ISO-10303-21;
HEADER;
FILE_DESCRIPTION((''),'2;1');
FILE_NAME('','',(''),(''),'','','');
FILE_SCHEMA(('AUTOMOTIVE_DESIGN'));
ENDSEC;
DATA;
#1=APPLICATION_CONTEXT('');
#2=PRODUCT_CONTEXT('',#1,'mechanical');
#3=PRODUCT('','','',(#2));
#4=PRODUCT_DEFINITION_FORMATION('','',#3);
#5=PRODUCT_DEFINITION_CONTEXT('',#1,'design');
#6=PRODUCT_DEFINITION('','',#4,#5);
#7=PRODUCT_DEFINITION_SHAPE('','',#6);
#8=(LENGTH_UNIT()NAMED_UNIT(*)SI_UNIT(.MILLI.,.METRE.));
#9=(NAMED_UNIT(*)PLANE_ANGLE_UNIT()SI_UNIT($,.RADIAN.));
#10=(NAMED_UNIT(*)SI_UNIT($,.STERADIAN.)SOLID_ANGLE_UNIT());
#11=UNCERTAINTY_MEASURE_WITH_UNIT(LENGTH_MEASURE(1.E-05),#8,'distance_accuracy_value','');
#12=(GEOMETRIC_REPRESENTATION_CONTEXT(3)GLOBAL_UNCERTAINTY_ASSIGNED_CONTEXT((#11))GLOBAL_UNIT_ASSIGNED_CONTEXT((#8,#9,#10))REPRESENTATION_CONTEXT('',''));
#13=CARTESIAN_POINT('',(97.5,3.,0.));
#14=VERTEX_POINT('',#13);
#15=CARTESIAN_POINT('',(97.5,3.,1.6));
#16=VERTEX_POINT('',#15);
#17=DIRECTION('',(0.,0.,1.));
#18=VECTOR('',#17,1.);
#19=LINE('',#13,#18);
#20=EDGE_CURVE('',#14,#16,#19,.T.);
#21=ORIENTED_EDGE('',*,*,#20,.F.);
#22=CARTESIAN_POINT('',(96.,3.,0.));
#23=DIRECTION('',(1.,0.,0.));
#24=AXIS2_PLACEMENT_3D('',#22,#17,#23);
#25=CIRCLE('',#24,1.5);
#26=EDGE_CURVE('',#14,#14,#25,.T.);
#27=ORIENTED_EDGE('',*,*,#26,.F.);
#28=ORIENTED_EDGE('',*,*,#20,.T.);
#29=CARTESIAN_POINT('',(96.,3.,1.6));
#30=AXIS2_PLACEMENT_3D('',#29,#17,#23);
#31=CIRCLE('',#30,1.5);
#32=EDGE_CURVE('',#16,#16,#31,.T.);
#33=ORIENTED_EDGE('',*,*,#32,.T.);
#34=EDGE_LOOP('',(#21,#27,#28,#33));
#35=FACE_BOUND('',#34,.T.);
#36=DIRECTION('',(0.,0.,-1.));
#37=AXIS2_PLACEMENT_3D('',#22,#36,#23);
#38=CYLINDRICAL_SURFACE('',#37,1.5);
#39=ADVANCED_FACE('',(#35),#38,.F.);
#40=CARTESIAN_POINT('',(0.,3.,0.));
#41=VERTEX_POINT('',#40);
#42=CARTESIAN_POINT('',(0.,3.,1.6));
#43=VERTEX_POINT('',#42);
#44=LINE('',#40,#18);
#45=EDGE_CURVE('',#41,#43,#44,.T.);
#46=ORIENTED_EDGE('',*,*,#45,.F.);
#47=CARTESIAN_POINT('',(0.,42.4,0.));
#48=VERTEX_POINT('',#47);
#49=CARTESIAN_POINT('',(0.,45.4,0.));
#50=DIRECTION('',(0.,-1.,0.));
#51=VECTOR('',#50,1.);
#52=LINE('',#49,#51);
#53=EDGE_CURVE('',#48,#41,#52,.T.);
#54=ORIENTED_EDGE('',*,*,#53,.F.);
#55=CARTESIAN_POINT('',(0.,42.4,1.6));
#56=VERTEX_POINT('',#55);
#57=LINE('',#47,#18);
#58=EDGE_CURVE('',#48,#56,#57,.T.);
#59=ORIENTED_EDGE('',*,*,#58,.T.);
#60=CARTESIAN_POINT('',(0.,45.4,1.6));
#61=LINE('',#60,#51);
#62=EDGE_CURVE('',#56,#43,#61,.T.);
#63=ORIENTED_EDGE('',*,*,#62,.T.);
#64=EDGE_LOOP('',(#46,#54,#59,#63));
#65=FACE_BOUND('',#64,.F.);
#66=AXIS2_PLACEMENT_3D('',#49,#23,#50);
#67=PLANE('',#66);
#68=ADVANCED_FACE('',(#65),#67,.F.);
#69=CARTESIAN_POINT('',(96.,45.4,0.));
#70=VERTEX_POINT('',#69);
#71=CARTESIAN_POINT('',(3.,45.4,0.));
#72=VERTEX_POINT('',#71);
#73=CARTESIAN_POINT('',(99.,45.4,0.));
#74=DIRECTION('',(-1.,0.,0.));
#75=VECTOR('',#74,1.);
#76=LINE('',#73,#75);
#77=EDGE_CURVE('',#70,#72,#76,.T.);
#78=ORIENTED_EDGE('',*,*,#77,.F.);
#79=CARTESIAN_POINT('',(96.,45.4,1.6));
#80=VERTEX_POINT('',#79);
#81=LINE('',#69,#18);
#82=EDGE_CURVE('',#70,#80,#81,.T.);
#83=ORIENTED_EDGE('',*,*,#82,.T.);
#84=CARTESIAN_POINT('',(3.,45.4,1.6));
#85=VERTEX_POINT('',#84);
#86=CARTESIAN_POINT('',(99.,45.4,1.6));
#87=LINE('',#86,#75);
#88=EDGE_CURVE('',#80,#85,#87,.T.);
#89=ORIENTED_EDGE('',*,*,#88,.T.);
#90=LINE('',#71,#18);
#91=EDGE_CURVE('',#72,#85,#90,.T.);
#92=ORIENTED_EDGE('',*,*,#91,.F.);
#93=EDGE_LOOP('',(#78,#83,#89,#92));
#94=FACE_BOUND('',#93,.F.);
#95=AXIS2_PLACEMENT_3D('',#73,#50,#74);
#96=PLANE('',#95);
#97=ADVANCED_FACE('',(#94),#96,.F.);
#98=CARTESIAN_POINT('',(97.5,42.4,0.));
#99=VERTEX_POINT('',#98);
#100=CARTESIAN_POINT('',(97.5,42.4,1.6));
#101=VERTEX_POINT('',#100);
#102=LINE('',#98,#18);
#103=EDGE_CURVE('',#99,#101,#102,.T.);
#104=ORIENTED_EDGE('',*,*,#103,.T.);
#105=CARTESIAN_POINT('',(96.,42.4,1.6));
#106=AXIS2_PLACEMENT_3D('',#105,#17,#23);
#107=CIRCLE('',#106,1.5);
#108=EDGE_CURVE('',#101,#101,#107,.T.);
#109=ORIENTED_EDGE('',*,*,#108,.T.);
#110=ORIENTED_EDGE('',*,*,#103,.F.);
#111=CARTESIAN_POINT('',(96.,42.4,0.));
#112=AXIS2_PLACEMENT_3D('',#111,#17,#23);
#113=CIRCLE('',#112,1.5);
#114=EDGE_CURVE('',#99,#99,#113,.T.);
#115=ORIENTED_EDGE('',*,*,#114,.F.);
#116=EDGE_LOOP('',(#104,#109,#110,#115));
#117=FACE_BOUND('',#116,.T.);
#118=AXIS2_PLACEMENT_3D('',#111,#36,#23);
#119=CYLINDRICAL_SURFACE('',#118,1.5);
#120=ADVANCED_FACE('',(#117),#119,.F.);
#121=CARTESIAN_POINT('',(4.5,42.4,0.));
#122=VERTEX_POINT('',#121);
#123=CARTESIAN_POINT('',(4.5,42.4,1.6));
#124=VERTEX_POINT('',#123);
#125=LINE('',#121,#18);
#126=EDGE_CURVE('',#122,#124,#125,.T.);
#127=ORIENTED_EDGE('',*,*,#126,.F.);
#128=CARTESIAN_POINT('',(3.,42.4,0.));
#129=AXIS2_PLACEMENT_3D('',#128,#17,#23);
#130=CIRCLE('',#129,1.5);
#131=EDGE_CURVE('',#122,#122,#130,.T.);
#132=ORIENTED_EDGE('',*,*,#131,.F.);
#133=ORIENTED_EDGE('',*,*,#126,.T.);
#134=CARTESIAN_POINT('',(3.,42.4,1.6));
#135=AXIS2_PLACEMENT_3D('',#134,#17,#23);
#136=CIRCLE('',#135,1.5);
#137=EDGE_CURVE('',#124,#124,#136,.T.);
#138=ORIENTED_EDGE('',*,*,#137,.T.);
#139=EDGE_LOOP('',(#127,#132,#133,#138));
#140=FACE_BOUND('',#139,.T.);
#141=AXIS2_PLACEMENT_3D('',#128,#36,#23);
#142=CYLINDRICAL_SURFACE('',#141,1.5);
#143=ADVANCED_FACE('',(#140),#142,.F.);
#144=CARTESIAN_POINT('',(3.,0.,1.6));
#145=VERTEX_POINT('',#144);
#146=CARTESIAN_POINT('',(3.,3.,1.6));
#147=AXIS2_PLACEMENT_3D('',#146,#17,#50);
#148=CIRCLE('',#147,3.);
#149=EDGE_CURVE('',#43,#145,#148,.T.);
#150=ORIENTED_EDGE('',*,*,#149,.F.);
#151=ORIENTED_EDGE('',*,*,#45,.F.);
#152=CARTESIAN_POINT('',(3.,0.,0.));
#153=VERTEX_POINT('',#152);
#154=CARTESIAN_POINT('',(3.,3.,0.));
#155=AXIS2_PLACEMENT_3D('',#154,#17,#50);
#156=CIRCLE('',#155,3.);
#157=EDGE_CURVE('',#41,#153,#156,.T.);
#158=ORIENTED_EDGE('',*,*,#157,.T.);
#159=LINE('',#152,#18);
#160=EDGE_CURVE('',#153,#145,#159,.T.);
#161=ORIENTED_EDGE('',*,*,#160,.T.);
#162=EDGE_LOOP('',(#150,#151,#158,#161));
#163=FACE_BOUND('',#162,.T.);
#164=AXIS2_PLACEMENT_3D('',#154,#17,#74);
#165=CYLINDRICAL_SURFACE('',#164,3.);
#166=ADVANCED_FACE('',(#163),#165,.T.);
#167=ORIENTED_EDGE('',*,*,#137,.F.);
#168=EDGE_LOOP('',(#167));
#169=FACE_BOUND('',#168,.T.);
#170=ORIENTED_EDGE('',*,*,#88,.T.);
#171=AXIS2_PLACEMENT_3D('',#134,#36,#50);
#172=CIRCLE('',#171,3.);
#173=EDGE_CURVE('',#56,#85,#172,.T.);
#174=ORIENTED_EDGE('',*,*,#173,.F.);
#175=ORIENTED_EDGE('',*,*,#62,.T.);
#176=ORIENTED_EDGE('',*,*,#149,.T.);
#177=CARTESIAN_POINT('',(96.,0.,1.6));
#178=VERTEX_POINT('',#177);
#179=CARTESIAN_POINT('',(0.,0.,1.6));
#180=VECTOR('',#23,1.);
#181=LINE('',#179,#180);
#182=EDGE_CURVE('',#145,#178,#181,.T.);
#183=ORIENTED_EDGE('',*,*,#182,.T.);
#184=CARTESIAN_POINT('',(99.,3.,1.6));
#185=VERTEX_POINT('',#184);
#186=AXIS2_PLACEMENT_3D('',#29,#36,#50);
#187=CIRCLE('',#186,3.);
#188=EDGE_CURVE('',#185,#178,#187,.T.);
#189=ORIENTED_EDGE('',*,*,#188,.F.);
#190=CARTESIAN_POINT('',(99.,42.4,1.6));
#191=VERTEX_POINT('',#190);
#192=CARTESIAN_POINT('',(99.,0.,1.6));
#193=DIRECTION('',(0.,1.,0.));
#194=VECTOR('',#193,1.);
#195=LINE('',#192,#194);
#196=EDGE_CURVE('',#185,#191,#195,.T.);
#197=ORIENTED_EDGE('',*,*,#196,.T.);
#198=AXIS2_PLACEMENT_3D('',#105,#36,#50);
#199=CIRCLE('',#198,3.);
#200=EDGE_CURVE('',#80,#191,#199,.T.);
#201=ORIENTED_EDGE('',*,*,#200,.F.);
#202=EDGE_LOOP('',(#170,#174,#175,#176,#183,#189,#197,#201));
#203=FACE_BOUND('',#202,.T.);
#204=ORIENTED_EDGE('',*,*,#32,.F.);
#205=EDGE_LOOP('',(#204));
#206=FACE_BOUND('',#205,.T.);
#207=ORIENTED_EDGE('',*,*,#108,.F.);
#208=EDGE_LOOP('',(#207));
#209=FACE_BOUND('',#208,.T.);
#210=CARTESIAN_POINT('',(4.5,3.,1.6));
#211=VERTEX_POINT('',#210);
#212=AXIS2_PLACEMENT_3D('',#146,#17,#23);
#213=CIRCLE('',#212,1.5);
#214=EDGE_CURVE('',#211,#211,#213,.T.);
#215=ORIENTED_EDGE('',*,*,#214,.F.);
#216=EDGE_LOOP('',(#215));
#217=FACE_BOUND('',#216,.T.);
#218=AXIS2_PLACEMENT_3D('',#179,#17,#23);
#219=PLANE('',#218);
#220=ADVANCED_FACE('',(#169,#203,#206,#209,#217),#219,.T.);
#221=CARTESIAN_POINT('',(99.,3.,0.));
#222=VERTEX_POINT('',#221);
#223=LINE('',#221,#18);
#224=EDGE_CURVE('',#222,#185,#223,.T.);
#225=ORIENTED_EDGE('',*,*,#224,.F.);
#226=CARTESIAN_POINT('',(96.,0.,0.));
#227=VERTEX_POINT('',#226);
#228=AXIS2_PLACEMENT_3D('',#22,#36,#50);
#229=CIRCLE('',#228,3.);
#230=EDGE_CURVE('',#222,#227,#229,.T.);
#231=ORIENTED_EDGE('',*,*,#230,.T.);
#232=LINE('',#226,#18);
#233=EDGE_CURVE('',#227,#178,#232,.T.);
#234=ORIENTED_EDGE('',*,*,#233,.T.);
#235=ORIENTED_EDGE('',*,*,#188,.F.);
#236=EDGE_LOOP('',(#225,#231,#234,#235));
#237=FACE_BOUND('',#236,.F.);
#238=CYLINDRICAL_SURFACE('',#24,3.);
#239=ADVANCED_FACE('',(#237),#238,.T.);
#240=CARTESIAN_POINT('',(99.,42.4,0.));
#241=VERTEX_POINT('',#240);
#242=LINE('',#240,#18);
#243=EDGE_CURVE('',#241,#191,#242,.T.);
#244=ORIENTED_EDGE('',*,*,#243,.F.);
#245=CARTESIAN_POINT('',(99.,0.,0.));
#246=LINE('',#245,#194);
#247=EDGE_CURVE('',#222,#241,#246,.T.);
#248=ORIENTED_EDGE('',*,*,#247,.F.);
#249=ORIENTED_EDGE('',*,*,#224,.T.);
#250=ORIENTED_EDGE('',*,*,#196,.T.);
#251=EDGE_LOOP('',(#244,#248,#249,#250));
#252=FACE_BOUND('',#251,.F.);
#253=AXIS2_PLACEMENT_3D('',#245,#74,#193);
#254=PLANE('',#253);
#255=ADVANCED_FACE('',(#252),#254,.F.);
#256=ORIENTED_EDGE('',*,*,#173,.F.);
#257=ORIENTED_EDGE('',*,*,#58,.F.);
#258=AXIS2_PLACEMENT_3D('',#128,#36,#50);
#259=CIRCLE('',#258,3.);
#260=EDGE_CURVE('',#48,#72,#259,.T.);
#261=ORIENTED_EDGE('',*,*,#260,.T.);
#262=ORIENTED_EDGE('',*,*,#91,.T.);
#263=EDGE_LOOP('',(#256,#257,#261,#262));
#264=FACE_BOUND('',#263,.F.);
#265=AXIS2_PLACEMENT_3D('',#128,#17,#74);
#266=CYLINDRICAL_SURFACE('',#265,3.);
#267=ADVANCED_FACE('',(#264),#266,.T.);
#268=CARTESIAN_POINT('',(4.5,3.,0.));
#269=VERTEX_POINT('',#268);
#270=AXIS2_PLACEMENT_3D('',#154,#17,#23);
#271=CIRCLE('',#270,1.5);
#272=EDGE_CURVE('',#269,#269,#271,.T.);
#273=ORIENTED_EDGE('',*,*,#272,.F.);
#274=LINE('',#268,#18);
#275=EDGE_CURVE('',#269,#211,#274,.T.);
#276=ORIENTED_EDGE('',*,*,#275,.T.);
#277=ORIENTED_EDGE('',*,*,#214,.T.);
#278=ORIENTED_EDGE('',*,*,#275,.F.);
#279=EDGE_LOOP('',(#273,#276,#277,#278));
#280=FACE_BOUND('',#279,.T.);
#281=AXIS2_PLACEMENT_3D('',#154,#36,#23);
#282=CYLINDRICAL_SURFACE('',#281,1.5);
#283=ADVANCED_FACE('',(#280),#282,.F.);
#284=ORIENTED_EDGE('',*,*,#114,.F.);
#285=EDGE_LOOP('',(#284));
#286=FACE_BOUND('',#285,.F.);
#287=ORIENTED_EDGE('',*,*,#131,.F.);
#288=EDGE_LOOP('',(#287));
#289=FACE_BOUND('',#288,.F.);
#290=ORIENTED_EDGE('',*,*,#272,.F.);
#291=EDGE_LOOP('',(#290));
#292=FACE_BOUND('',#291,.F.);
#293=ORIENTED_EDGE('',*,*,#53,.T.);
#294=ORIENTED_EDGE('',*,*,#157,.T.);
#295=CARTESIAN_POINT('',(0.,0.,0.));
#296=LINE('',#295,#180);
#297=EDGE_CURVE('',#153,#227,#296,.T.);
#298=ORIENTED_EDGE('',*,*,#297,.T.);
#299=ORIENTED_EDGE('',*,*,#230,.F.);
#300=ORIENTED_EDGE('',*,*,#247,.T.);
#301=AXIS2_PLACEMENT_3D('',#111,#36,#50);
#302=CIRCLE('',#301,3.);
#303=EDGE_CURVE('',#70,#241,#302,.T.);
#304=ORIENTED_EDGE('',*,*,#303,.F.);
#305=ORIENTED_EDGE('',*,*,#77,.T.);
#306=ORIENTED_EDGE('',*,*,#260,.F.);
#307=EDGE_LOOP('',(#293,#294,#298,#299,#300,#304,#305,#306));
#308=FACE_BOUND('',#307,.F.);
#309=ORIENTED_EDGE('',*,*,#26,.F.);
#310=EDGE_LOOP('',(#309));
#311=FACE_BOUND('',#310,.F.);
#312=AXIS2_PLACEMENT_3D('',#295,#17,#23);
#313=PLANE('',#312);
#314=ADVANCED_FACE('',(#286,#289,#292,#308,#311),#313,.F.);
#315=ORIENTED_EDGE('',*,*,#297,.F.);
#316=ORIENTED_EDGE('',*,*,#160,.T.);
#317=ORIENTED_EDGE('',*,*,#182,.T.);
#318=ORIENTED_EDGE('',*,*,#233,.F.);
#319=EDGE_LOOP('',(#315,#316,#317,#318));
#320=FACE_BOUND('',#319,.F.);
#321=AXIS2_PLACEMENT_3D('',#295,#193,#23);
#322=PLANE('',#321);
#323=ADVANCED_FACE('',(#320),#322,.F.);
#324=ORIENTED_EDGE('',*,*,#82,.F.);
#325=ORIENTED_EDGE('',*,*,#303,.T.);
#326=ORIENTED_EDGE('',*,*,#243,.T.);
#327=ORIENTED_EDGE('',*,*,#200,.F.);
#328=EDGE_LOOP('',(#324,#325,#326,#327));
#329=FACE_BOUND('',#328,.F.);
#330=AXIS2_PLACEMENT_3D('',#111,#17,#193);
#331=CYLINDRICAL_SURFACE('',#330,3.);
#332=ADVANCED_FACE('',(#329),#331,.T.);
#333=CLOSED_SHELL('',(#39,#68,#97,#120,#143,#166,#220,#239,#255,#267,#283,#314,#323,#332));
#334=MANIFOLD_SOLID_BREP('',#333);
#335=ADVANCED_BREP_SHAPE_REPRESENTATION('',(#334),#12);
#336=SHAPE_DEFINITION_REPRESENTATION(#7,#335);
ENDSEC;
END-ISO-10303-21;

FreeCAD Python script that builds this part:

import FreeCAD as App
import Part
import Sketcher

V = App.Vector


def edges_at(feature, points):
    """Names of the edges that pass closest to the given points."""
    edges = feature.Shape.Edges
    near = lambda p: min(range(len(edges)), key=lambda i: edges[i].distToShape(Part.Vertex(*p))[0])
    return sorted({f"Edge{near(p) + 1}" for p in points})


def add_polygon(sketch, points):
    """Adds a closed chain of lines whose ends are joined by coincident constraints."""
    first, n = sketch.GeometryCount, len(points)
    for a, b in zip(points, points[1:] + points[:1]):
        sketch.addGeometry(Part.LineSegment(App.Vector(*a, 0), App.Vector(*b, 0)), False)
    for i in range(n):
        sketch.addConstraint(Sketcher.Constraint("Coincident", first + i, 2, first + (i + 1) % n, 1))

doc = App.newDocument("Part")
params = doc.addObject("Spreadsheet::Sheet", "Params")
for row, (alias, value) in enumerate([
    ("sketch1_diameter", "3 mm"),
    ("sketch1_width", "99 mm"),
    ("sketch1_height", "45.4 mm"),
    ("pad1_length", "1.6 mm"),
    ("fillet_radius", "3 mm"),
], start=1):
    params.set(f"A{row}", alias)
    params.set(f"B{row}", "=" + value)
    params.setAlias(f"B{row}", alias)

body = doc.addObject("PartDesign::Body", "Body")

# Sketch on XY plane
sketch1 = body.newObject("Sketcher::SketchObject", "Sketch")
sketch1.AttachmentSupport = (doc.getObject("XY_Plane"), [""])
sketch1.MapMode = "FlatFace"
add_polygon(sketch1, [(0, 45.4), (0, 0), (99, 0), (99, 45.4)])  # lines 0-3
sketch1.addGeometry(Part.Circle(V(3, 3, 0), V(0, 0, 1), 1.5), False)  # 4
sketch1.addGeometry(Part.Circle(V(96, 3, 0), V(0, 0, 1), 1.5), False)  # 5
sketch1.addGeometry(Part.Circle(V(3, 42.4, 0), V(0, 0, 1), 1.5), False)  # 6
sketch1.addGeometry(Part.Circle(V(96, 42.4, 0), V(0, 0, 1), 1.5), False)  # 7
sketch1.addConstraint([
    Sketcher.Constraint("Vertical", 0),
    Sketcher.Constraint("Horizontal", 1),
    Sketcher.Constraint("Vertical", 2),
    Sketcher.Constraint("Horizontal", 3),
    Sketcher.Constraint("Coincident", 0, 2, -1, 1),
    Sketcher.Constraint("Equal", 4, 5),
    Sketcher.Constraint("Equal", 5, 6),
    Sketcher.Constraint("Equal", 6, 7),
    Sketcher.Constraint("Horizontal", 4, 3, 5, 3),
    Sketcher.Constraint("Horizontal", 6, 3, 7, 3),
    Sketcher.Constraint("Vertical", 4, 3, 6, 3),
    Sketcher.Constraint("Vertical", 5, 3, 7, 3),
    Sketcher.Constraint("Diameter", 4, 3.0),
    Sketcher.Constraint("DistanceX", 1, 1, 1, 2, 99.0),
    Sketcher.Constraint("DistanceY", 0, 2, 0, 1, 45.4),
    Sketcher.Constraint("DistanceX", -1, 1, 4, 3, 3.0),
    Sketcher.Constraint("DistanceY", -1, 1, 4, 3, 3.0),
    Sketcher.Constraint("DistanceX", 5, 3, 1, 2, 3.0),
    Sketcher.Constraint("DistanceY", 7, 3, 2, 2, 3.0),
])
sketch1.setExpression("Constraints[16]", "Params.sketch1_diameter")
sketch1.setExpression("Constraints[17]", "Params.sketch1_width")
sketch1.setExpression("Constraints[18]", "Params.sketch1_height")
pad1 = body.newObject("PartDesign::Pad", "Pad")
pad1.Profile = sketch1
pad1.setExpression("Length", "Params.pad1_length")
doc.recompute()

fillet = body.newObject("PartDesign::Fillet", "Fillet")
fillet.Base = (pad1, edges_at(pad1, [
    (0, 0, 0.8),
    (99, 0, 0.8),
    (99, 45.4, 0.8),
    (0, 45.4, 0.8),
]))
fillet.setExpression("Radius", "Params.fillet_radius")

doc.recompute()
